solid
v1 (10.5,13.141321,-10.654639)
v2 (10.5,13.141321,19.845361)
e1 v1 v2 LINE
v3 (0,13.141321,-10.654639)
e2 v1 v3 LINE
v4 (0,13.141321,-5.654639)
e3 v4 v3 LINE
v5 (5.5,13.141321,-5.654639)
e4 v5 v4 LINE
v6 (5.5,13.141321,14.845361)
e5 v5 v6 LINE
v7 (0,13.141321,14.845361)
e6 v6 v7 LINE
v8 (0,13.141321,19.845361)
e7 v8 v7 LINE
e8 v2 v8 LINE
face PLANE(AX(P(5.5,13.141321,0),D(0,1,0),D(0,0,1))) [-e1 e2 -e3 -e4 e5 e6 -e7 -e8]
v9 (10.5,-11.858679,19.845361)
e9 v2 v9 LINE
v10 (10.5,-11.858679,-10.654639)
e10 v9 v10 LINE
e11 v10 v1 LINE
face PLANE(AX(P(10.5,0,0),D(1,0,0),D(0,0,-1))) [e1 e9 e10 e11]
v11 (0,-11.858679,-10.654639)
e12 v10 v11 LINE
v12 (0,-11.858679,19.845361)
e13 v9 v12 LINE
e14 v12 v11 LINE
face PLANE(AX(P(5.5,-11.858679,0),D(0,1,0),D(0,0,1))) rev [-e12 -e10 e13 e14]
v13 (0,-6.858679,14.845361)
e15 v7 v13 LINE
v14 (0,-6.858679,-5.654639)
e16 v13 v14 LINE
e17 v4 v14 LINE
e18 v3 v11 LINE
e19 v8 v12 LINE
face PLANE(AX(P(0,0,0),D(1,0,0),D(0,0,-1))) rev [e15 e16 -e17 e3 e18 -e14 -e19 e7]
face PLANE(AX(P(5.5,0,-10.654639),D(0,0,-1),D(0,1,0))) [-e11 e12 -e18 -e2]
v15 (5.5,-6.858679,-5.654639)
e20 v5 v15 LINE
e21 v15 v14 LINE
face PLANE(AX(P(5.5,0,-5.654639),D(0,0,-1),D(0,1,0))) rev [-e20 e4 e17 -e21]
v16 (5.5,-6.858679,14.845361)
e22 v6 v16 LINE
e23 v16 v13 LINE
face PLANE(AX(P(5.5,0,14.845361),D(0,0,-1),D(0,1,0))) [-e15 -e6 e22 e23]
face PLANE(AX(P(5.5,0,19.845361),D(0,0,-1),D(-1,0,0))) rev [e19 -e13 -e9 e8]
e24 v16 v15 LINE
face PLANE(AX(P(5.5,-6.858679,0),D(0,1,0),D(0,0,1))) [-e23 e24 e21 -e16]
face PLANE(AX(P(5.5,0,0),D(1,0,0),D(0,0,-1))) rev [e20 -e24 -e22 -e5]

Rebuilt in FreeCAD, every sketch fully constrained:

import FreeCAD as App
import Part
import Sketcher


def add_polygon(sketch, points):
    """Adds a closed chain of lines whose ends are joined by coincident constraints."""
    first, n = sketch.GeometryCount, len(points)
    for a, b in zip(points, points[1:] + points[:1]):
        sketch.addGeometry(Part.LineSegment(App.Vector(*a, 0), App.Vector(*b, 0)), False)
    for i in range(n):
        sketch.addConstraint(Sketcher.Constraint("Coincident", first + i, 2, first + (i + 1) % n, 1))

doc = App.newDocument("Part")
body = doc.addObject("PartDesign::Body", "Body")

sketch1 = doc.addObject("Sketcher::SketchObject", "Sketch")
body.addObject(sketch1)
sketch1.AttachmentSupport = (doc.YZ_Plane, [""])
sketch1.MapMode = "FlatFace"
add_polygon(sketch1, [(-7, 15), (13, 15), (13, 20), (-12, 20), (-12, -11), (13, -11), (13, -6), (-7, -6)])
sketch1.addConstraint(Sketcher.Constraint("Horizontal", 0))
sketch1.addConstraint(Sketcher.Constraint("Vertical", 1))
sketch1.addConstraint(Sketcher.Constraint("Horizontal", 2))
sketch1.addConstraint(Sketcher.Constraint("Vertical", 3))
sketch1.addConstraint(Sketcher.Constraint("Horizontal", 4))
sketch1.addConstraint(Sketcher.Constraint("Vertical", 5))
sketch1.addConstraint(Sketcher.Constraint("Horizontal", 6))
sketch1.addConstraint(Sketcher.Constraint("Vertical", 7))
sketch1.addConstraint(Sketcher.Constraint("Vertical", 1, 2, 4, 2))
sketch1.addConstraint(Sketcher.Constraint("Equal", 1, 5))
sketch1.addConstraint(Sketcher.Constraint("DistanceX", 0, 1, 0, 2, 20.0))
sketch1.addConstraint(Sketcher.Constraint("DistanceX", 2, 2, 2, 1, 25.0))
sketch1.addConstraint(Sketcher.Constraint("DistanceY", 1, 1, 1, 2, 5.0))
sketch1.addConstraint(Sketcher.Constraint("DistanceY", 3, 2, 3, 1, 30.5))
sketch1.addConstraint(Sketcher.Constraint("DistanceX", -1, 1, 0, 2, 13.141321))
sketch1.addConstraint(Sketcher.Constraint("DistanceY", -1, 1, 0, 2, 14.845361))
pad1 = doc.addObject("PartDesign::Pad", "Pad")
body.addObject(pad1)
pad1.Profile = sketch1
pad1.Length = 5.5

sketch2 = doc.addObject("Sketcher::SketchObject", "Sketch001")
body.addObject(sketch2)
sketch2.AttachmentSupport = (doc.YZ_Plane, [""])
sketch2.MapMode = "FlatFace"
sketch2.AttachmentOffset = App.Placement(App.Vector(0, 0, 5.5), App.Rotation())
add_polygon(sketch2, [(13, 20), (-12, 20), (-12, -11), (13, -11)])
sketch2.addConstraint(Sketcher.Constraint("Horizontal", 0))
sketch2.addConstraint(Sketcher.Constraint("Vertical", 1))
sketch2.addConstraint(Sketcher.Constraint("Horizontal", 2))
sketch2.addConstraint(Sketcher.Constraint("Vertical", 3))
sketch2.addConstraint(Sketcher.Constraint("DistanceX", 0, 2, 0, 1, 25.0))
sketch2.addConstraint(Sketcher.Constraint("DistanceY", 1, 2, 1, 1, 30.5))
sketch2.addConstraint(Sketcher.Constraint("DistanceX", 0, 2, -1, 1, 11.858679))
sketch2.addConstraint(Sketcher.Constraint("DistanceY", -1, 1, 0, 2, 19.845361))
pad2 = doc.addObject("PartDesign::Pad", "Pad001")
body.addObject(pad2)
pad2.Profile = sketch2
pad2.Length = 5

doc.recompute()
